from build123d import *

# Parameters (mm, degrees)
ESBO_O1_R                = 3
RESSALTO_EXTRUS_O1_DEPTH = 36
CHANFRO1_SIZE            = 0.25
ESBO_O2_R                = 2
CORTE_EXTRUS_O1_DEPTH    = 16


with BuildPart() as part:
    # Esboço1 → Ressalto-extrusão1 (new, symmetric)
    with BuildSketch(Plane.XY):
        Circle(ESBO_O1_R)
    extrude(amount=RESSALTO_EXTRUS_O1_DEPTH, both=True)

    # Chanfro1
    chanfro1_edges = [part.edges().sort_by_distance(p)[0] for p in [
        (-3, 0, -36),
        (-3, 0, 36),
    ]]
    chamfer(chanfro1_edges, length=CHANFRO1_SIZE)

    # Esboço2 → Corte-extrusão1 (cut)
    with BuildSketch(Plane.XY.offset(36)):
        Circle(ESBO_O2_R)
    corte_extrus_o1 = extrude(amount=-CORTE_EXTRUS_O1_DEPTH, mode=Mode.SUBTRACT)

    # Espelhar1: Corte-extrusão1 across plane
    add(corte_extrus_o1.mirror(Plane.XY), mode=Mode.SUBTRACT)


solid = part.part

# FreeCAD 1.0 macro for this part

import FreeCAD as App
import Part
import Sketcher


def edges_at(feature, points):
    """Names of the edges that pass closest to the given points."""
    edges = feature.Shape.Edges
    near = lambda p: min(range(len(edges)), key=lambda i: edges[i].distToShape(Part.Vertex(*p))[0])
    return sorted({f"Edge{near(p) + 1}" for p in points})

doc = App.newDocument("Part")
params = doc.addObject("Spreadsheet::Sheet", "Params")
for row, (alias, value) in enumerate([
    ("sketch1_diameter", "6 mm"),
    ("pad1_length", "72 mm"),
    ("chamfer_size", "0.25 mm"),
    ("sketch2_diameter", "4 mm"),
    ("pocket1_length", "16 mm"),
], start=1):
    params.set(f"A{row}", alias)
    params.set(f"B{row}", "=" + value)
    params.setAlias(f"B{row}", alias)

body = doc.addObject("PartDesign::Body", "Body")

# Sketch on XY plane
sketch1 = body.newObject("Sketcher::SketchObject", "Sketch")
sketch1.AttachmentSupport = (doc.getObject("XY_Plane"), [""])
sketch1.MapMode = "FlatFace"
sketch1.addGeometry(Part.Circle(App.Vector(0, 0, 0), App.Vector(0, 0, 1), 3), False)
sketch1.addConstraint([
    Sketcher.Constraint("Coincident", 0, 3, -1, 1),
    Sketcher.Constraint("Diameter", 0, 6.0),
])
sketch1.setExpression("Constraints[1]", "Params.sketch1_diameter")
pad1 = body.newObject("PartDesign::Pad", "Pad")
pad1.Profile = sketch1
pad1.setExpression("Length", "Params.pad1_length")
pad1.Midplane = True
doc.recompute()

chamfer = body.newObject("PartDesign::Chamfer", "Chamfer")
chamfer.Base = (pad1, edges_at(pad1, [(-3, 0, -36), (-3, 0, 36)]))
chamfer.setExpression("Size", "Params.chamfer_size")

# Sketch on XY plane
sketch2 = body.newObject("Sketcher::SketchObject", "Sketch001")
sketch2.AttachmentSupport = (doc.getObject("XY_Plane"), [""])
sketch2.MapMode = "FlatFace"
sketch2.AttachmentOffset = App.Placement(App.Vector(0, 0, 36), App.Rotation())
sketch2.addGeometry(Part.Circle(App.Vector(0, 0, 0), App.Vector(0, 0, 1), 2), False)
sketch2.addConstraint([
    Sketcher.Constraint("Coincident", 0, 3, -1, 1),
    Sketcher.Constraint("Diameter", 0, 4.0),
])
sketch2.setExpression("Constraints[1]", "Params.sketch2_diameter")
pocket1 = body.newObject("PartDesign::Pocket", "Pocket")
pocket1.Profile = sketch2
pocket1.setExpression("Length", "Params.pocket1_length")
doc.recompute()

mirrored = body.newObject("PartDesign::Mirrored", "Mirrored")
mirrored.Originals = [pocket1]
mirrored.MirrorPlane = (doc.getObject("XY_Plane"), [""])
body.Tip = mirrored

doc.recompute()
